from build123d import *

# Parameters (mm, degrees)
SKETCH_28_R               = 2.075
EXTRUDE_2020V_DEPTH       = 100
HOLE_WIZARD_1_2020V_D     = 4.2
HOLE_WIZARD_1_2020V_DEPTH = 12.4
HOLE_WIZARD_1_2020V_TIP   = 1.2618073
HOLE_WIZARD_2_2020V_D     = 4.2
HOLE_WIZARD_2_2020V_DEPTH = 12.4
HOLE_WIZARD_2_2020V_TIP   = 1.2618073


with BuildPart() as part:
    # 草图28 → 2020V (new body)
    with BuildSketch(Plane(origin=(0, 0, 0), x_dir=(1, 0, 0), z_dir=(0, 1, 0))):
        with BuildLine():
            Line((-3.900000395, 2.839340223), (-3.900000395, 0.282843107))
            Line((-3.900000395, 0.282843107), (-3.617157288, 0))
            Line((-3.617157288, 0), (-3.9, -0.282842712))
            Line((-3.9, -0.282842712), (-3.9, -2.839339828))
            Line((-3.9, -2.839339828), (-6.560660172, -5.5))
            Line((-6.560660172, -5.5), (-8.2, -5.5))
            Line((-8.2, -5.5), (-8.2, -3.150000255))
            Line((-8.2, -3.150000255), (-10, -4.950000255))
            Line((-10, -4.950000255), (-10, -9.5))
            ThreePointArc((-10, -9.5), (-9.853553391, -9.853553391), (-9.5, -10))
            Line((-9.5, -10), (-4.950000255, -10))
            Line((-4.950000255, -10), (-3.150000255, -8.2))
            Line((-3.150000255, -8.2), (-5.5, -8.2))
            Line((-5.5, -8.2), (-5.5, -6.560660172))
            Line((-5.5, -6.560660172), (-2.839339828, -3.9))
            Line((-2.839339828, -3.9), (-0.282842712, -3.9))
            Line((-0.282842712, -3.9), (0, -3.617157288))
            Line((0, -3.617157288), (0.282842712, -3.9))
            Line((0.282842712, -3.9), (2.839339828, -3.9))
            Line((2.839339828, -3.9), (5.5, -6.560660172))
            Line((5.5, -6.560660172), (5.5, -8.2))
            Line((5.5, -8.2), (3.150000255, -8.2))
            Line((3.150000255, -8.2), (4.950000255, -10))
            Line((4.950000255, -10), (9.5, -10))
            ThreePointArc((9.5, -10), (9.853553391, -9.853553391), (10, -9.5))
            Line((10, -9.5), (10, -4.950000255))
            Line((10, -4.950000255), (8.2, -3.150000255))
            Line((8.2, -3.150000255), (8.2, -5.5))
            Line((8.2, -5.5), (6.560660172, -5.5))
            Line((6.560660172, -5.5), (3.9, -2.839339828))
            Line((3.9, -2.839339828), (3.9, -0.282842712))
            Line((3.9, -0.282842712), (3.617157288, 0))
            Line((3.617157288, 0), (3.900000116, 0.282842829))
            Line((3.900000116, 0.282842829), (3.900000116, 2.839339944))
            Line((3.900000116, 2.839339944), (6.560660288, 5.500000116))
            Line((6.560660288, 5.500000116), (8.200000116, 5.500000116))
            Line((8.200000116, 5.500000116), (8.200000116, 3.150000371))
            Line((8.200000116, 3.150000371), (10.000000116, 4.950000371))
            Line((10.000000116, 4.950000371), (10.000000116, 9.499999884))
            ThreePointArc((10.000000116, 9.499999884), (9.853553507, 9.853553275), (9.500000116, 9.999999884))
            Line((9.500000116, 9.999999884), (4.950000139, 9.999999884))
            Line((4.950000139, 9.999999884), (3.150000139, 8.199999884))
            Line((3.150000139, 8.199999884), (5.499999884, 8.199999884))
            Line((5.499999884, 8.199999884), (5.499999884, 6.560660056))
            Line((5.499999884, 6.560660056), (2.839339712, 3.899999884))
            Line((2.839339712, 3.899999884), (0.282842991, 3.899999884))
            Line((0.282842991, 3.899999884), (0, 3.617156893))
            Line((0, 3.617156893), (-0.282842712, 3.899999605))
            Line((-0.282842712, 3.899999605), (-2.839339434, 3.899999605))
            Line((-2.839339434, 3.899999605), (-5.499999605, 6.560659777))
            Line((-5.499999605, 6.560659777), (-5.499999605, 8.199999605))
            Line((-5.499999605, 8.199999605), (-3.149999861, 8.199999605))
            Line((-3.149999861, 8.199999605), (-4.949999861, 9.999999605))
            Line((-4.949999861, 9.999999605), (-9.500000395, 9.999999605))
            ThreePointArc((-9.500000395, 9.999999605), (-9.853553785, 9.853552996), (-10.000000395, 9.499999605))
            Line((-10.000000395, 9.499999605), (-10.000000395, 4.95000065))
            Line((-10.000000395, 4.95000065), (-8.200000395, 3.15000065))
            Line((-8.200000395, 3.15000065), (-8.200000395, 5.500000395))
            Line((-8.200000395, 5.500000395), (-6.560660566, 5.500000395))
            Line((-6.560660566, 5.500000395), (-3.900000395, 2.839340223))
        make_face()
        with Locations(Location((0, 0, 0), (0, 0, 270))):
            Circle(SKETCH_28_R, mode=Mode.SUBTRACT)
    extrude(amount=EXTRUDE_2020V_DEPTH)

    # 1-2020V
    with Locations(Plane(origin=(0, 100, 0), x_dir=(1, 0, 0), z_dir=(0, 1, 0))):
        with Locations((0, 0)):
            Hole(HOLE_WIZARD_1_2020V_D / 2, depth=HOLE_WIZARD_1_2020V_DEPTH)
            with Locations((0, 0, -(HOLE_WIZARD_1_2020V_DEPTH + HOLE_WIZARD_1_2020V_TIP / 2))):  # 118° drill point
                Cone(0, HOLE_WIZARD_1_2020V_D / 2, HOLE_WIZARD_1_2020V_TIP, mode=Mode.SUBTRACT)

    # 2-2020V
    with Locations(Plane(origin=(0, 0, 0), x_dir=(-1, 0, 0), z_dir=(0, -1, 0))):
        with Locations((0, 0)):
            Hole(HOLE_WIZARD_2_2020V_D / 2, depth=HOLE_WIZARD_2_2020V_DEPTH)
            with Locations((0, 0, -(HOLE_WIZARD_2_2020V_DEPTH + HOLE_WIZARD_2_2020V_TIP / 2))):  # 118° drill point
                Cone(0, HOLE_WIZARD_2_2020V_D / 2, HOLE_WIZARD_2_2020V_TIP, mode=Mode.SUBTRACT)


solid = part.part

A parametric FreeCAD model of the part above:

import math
import FreeCAD as App
import Part
import Sketcher

V = App.Vector

doc = App.newDocument("Part")
body = doc.addObject("PartDesign::Body", "Body")

# Sketch on XZ plane
sketch1 = body.newObject("Sketcher::SketchObject", "Sketch")
sketch1.AttachmentSupport = (doc.getObject("XZ_Plane"), [""])
sketch1.MapMode = "FlatFace"
sketch1.addGeometry([
    Part.LineSegment(V(-3.9, -2.84, 0), V(-3.9, -0.28, 0)),  # 0
    Part.LineSegment(V(-3.9, -0.28, 0), V(-3.62, 0, 0)),  # 1
    Part.LineSegment(V(-3.62, 0, 0), V(-3.9, 0.28, 0)),  # 2
    Part.LineSegment(V(-3.9, 0.28, 0), V(-3.9, 2.84, 0)),  # 3
    Part.LineSegment(V(-3.9, 2.84, 0), V(-6.56, 5.5, 0)),  # 4
    Part.LineSegment(V(-6.56, 5.5, 0), V(-8.2, 5.5, 0)),  # 5
    Part.LineSegment(V(-8.2, 5.5, 0), V(-8.2, 3.15, 0)),  # 6
    Part.LineSegment(V(-8.2, 3.15, 0), V(-10, 4.95, 0)),  # 7
    Part.LineSegment(V(-10, 4.95, 0), V(-10, 9.5, 0)),  # 8
    Part.ArcOfCircle(Part.Circle(V(-9.5, 9.5, 0), V(0, 0, 1), 0.5), math.radians(90), math.radians(180)),  # 9
    Part.LineSegment(V(-9.5, 10, 0), V(-4.95, 10, 0)),  # 10
    Part.LineSegment(V(-4.95, 10, 0), V(-3.15, 8.2, 0)),  # 11
    Part.LineSegment(V(-3.15, 8.2, 0), V(-5.5, 8.2, 0)),  # 12
    Part.LineSegment(V(-5.5, 8.2, 0), V(-5.5, 6.56, 0)),  # 13
    Part.LineSegment(V(-5.5, 6.56, 0), V(-2.84, 3.9, 0)),  # 14
    Part.LineSegment(V(-2.84, 3.9, 0), V(-0.28, 3.9, 0)),  # 15
    Part.LineSegment(V(-0.28, 3.9, 0), V(0, 3.62, 0)),  # 16
    Part.LineSegment(V(0, 3.62, 0), V(0.28, 3.9, 0)),  # 17
    Part.LineSegment(V(0.28, 3.9, 0), V(2.84, 3.9, 0)),  # 18
    Part.LineSegment(V(2.84, 3.9, 0), V(5.5, 6.56, 0)),  # 19
    Part.LineSegment(V(5.5, 6.56, 0), V(5.5, 8.2, 0)),  # 20
    Part.LineSegment(V(5.5, 8.2, 0), V(3.15, 8.2, 0)),  # 21
    Part.LineSegment(V(3.15, 8.2, 0), V(4.95, 10, 0)),  # 22
    Part.LineSegment(V(4.95, 10, 0), V(9.5, 10, 0)),  # 23
    Part.ArcOfCircle(Part.Circle(V(9.5, 9.5, 0), V(0, 0, 1), 0.5), math.radians(0), math.radians(90)),  # 24
    Part.LineSegment(V(10, 9.5, 0), V(10, 4.95, 0)),  # 25
    Part.LineSegment(V(10, 4.95, 0), V(8.2, 3.15, 0)),  # 26
    Part.LineSegment(V(8.2, 3.15, 0), V(8.2, 5.5, 0)),  # 27
    Part.LineSegment(V(8.2, 5.5, 0), V(6.56, 5.5, 0)),  # 28
    Part.LineSegment(V(6.56, 5.5, 0), V(3.9, 2.84, 0)),  # 29
    Part.LineSegment(V(3.9, 2.84, 0), V(3.9, 0.28, 0)),  # 30
    Part.LineSegment(V(3.9, 0.28, 0), V(3.62, 0, 0)),  # 31
    Part.LineSegment(V(3.62, 0, 0), V(3.9, -0.28, 0)),  # 32
    Part.LineSegment(V(3.9, -0.28, 0), V(3.9, -2.84, 0)),  # 33
    Part.LineSegment(V(3.9, -2.84, 0), V(6.56, -5.5, 0)),  # 34
    Part.LineSegment(V(6.56, -5.5, 0), V(8.2, -5.5, 0)),  # 35
    Part.LineSegment(V(8.2, -5.5, 0), V(8.2, -3.15, 0)),  # 36
    Part.LineSegment(V(8.2, -3.15, 0), V(10, -4.95, 0)),  # 37
    Part.LineSegment(V(10, -4.95, 0), V(10, -9.5, 0)),  # 38
    Part.ArcOfCircle(Part.Circle(V(9.5, -9.5, 0), V(0, 0, 1), 0.5), math.radians(-90), math.radians(0)),  # 39
    Part.LineSegment(V(9.5, -10, 0), V(4.95, -10, 0)),  # 40
    Part.LineSegment(V(4.95, -10, 0), V(3.15, -8.2, 0)),  # 41
    Part.LineSegment(V(3.15, -8.2, 0), V(5.5, -8.2, 0)),  # 42
    Part.LineSegment(V(5.5, -8.2, 0), V(5.5, -6.56, 0)),  # 43
    Part.LineSegment(V(5.5, -6.56, 0), V(2.84, -3.9, 0)),  # 44
    Part.LineSegment(V(2.84, -3.9, 0), V(0.28, -3.9, 0)),  # 45
    Part.LineSegment(V(0.28, -3.9, 0), V(0, -3.62, 0)),  # 46
    Part.LineSegment(V(0, -3.62, 0), V(-0.28, -3.9, 0)),  # 47
    Part.LineSegment(V(-0.28, -3.9, 0), V(-2.84, -3.9, 0)),  # 48
    Part.LineSegment(V(-2.84, -3.9, 0), V(-5.5, -6.56, 0)),  # 49
    Part.LineSegment(V(-5.5, -6.56, 0), V(-5.5, -8.2, 0)),  # 50
    Part.LineSegment(V(-5.5, -8.2, 0), V(-3.15, -8.2, 0)),  # 51
    Part.LineSegment(V(-3.15, -8.2, 0), V(-4.95, -10, 0)),  # 52
    Part.LineSegment(V(-4.95, -10, 0), V(-9.5, -10, 0)),  # 53
    Part.ArcOfCircle(Part.Circle(V(-9.5, -9.5, 0), V(0, 0, 1), 0.5), math.radians(180), math.radians(270)),  # 54
    Part.LineSegment(V(-10, -9.5, 0), V(-10, -4.95, 0)),  # 55
    Part.LineSegment(V(-10, -4.95, 0), V(-8.2, -3.15, 0)),  # 56
    Part.LineSegment(V(-8.2, -3.15, 0), V(-8.2, -5.5, 0)),  # 57
    Part.LineSegment(V(-8.2, -5.5, 0), V(-6.56, -5.5, 0)),  # 58
    Part.LineSegment(V(-6.56, -5.5, 0), V(-3.9, -2.84, 0)),  # 59
    Part.Circle(V(0, 0, 0), V(0, 0, 1), 2.08),  # 60
], False)
sketch1.addConstraint([
    Sketcher.Constraint("Coincident", 0, 2, 1, 1),
    Sketcher.Constraint("Coincident", 1, 2, 2, 1),
    Sketcher.Constraint("Coincident", 2, 2, 3, 1),
    Sketcher.Constraint("Coincident", 3, 2, 4, 1),
    Sketcher.Constraint("Coincident", 4, 2, 5, 1),
    Sketcher.Constraint("Coincident", 5, 2, 6, 1),
    Sketcher.Constraint("Coincident", 6, 2, 7, 1),
    Sketcher.Constraint("Coincident", 7, 2, 8, 1),
    Sketcher.Constraint("Tangent", 8, 2, 9, 2),
    Sketcher.Constraint("Tangent", 9, 1, 10, 1),
    Sketcher.Constraint("Coincident", 10, 2, 11, 1),
    Sketcher.Constraint("Coincident", 11, 2, 12, 1),
    Sketcher.Constraint("Coincident", 12, 2, 13, 1),
    Sketcher.Constraint("Coincident", 13, 2, 14, 1),
    Sketcher.Constraint("Coincident", 14, 2, 15, 1),
    Sketcher.Constraint("Coincident", 15, 2, 16, 1),
    Sketcher.Constraint("Coincident", 16, 2, 17, 1),
    Sketcher.Constraint("Coincident", 17, 2, 18, 1),
    Sketcher.Constraint("Coincident", 18, 2, 19, 1),
    Sketcher.Constraint("Coincident", 19, 2, 20, 1),
    Sketcher.Constraint("Coincident", 20, 2, 21, 1),
    Sketcher.Constraint("Coincident", 21, 2, 22, 1),
    Sketcher.Constraint("Coincident", 22, 2, 23, 1),
    Sketcher.Constraint("Tangent", 23, 2, 24, 2),
    Sketcher.Constraint("Tangent", 24, 1, 25, 1),
    Sketcher.Constraint("Coincident", 25, 2, 26, 1),
    Sketcher.Constraint("Coincident", 26, 2, 27, 1),
    Sketcher.Constraint("Coincident", 27, 2, 28, 1),
    Sketcher.Constraint("Coincident", 28, 2, 29, 1),
    Sketcher.Constraint("Coincident", 29, 2, 30, 1),
    Sketcher.Constraint("Coincident", 30, 2, 31, 1),
    Sketcher.Constraint("Coincident", 31, 2, 32, 1),
    Sketcher.Constraint("Coincident", 32, 2, 33, 1),
    Sketcher.Constraint("Coincident", 33, 2, 34, 1),
    Sketcher.Constraint("Coincident", 34, 2, 35, 1),
    Sketcher.Constraint("Coincident", 35, 2, 36, 1),
    Sketcher.Constraint("Coincident", 36, 2, 37, 1),
    Sketcher.Constraint("Coincident", 37, 2, 38, 1),
    Sketcher.Constraint("Tangent", 38, 2, 39, 2),
    Sketcher.Constraint("Tangent", 39, 1, 40, 1),
    Sketcher.Constraint("Coincident", 40, 2, 41, 1),
    Sketcher.Constraint("Coincident", 41, 2, 42, 1),
    Sketcher.Constraint("Coincident", 42, 2, 43, 1),
    Sketcher.Constraint("Coincident", 43, 2, 44, 1),
    Sketcher.Constraint("Coincident", 44, 2, 45, 1),
    Sketcher.Constraint("Coincident", 45, 2, 46, 1),
    Sketcher.Constraint("Coincident", 46, 2, 47, 1),
    Sketcher.Constraint("Coincident", 47, 2, 48, 1),
    Sketcher.Constraint("Coincident", 48, 2, 49, 1),
    Sketcher.Constraint("Coincident", 49, 2, 50, 1),
    Sketcher.Constraint("Coincident", 50, 2, 51, 1),
    Sketcher.Constraint("Coincident", 51, 2, 52, 1),
    Sketcher.Constraint("Coincident", 52, 2, 53, 1),
    Sketcher.Constraint("Tangent", 53, 2, 54, 2),
    Sketcher.Constraint("Tangent", 54, 1, 55, 1),
    Sketcher.Constraint("Coincident", 55, 2, 56, 1),
    Sketcher.Constraint("Coincident", 56, 2, 57, 1),
    Sketcher.Constraint("Coincident", 57, 2, 58, 1),
    Sketcher.Constraint("Coincident", 58, 2, 59, 1),
    Sketcher.Constraint("Coincident", 59, 2, 0, 1),
    Sketcher.Constraint("Vertical", 0),
    Sketcher.Constraint("Vertical", 3),
    Sketcher.Constraint("Horizontal", 5),
    Sketcher.Constraint("Vertical", 6),
    Sketcher.Constraint("Vertical", 8),
    Sketcher.Constraint("Horizontal", 10),
    Sketcher.Constraint("Horizontal", 12),
    Sketcher.Constraint("Vertical", 13),
    Sketcher.Constraint("Horizontal", 15),
    Sketcher.Constraint("Horizontal", 18),
    Sketcher.Constraint("Vertical", 20),
    Sketcher.Constraint("Horizontal", 21),
    Sketcher.Constraint("Horizontal", 23),
    Sketcher.Constraint("Vertical", 25),
    Sketcher.Constraint("Vertical", 27),
    Sketcher.Constraint("Horizontal", 28),
    Sketcher.Constraint("Vertical", 30),
    Sketcher.Constraint("Vertical", 33),
    Sketcher.Constraint("Horizontal", 35),
    Sketcher.Constraint("Vertical", 36),
    Sketcher.Constraint("Vertical", 38),
    Sketcher.Constraint("Horizontal", 40),
    Sketcher.Constraint("Horizontal", 42),
    Sketcher.Constraint("Vertical", 43),
    Sketcher.Constraint("Horizontal", 45),
    Sketcher.Constraint("Horizontal", 48),
    Sketcher.Constraint("Vertical", 50),
    Sketcher.Constraint("Horizontal", 51),
    Sketcher.Constraint("Horizontal", 53),
    Sketcher.Constraint("Vertical", 55),
    Sketcher.Constraint("Vertical", 57),
    Sketcher.Constraint("Horizontal", 58),
    Sketcher.Constraint("Coincident", 60, 3, -1, 1),
    Sketcher.Constraint("Equal", 9, 24),
    Sketcher.Constraint("Equal", 24, 39),
    Sketcher.Constraint("Equal", 39, 54),
    Sketcher.Constraint("Symmetric", 9, 3, 39, 3, -1, 1),
    Sketcher.Constraint("Symmetric", 24, 3, 54, 3, -1, 1),
    Sketcher.Constraint("Symmetric", 0, 2, 30, 2, -1, 1),
    Sketcher.Constraint("Symmetric", 1, 2, 31, 2, -1, 1),
    Sketcher.Constraint("Symmetric", 2, 2, 32, 2, -1, 1),
    Sketcher.Constraint("Symmetric", 4, 2, 34, 2, -1, 1),
    Sketcher.Constraint("Symmetric", 6, 2, 36, 2, -1, 1),
    Sketcher.Constraint("Symmetric", 11, 2, 41, 2, -1, 1),
    Sketcher.Constraint("Symmetric", 13, 2, 43, 2, -1, 1),
    Sketcher.Constraint("Symmetric", 14, 2, 44, 2, -1, 1),
    Sketcher.Constraint("Symmetric", 16, 2, 46, 2, -1, 1),
    Sketcher.Constraint("Symmetric", 17, 2, 47, 2, -1, 1),
    Sketcher.Constraint("Symmetric", 19, 2, 49, 2, -1, 1),
    Sketcher.Constraint("Symmetric", 21, 2, 51, 2, -1, 1),
    Sketcher.Constraint("Symmetric", 26, 2, 56, 2, -1, 1),
    Sketcher.Constraint("Symmetric", 28, 2, 58, 2, -1, 1),
    Sketcher.Constraint("Symmetric", 9, 3, 24, 3, -2),
    Sketcher.Constraint("Symmetric", 15, 2, 17, 2, -2),
    Sketcher.Constraint("Symmetric", 13, 2, 19, 2, -2),
    Sketcher.Constraint("Symmetric", 11, 2, 21, 2, -2),
    Sketcher.Constraint("Symmetric", 6, 2, 26, 2, -2),
    Sketcher.Constraint("Symmetric", 4, 2, 28, 2, -2),
    Sketcher.Constraint("Symmetric", 3, 2, 29, 2, -2),
    Sketcher.Constraint("PointOnObject", 1, 2, -1),
    Sketcher.Constraint("PointOnObject", 16, 2, -2),
    Sketcher.Constraint("Perpendicular", 1, 2),
    Sketcher.Constraint("Parallel", 2, 4),
    Sketcher.Constraint("Parallel", 4, 7),
    Sketcher.Constraint("Parallel", 7, 11),
    Sketcher.Constraint("Parallel", 11, 14),
    Sketcher.Constraint("Parallel", 14, 16),
    Sketcher.Constraint("Perpendicular", 16, 17),
    Sketcher.Constraint("Parallel", 17, 19),
    Sketcher.Constraint("Parallel", 19, 22),
    Sketcher.Constraint("Parallel", 22, 26),
    Sketcher.Constraint("Parallel", 32, 34),
    Sketcher.Constraint("Parallel", 34, 37),
    Sketcher.Constraint("Parallel", 37, 41),
    Sketcher.Constraint("Parallel", 44, 46),
    Sketcher.Constraint("Parallel", 47, 49),
    Sketcher.Constraint("Parallel", 49, 52),
    Sketcher.Constraint("Parallel", 52, 56),
    Sketcher.Constraint("Parallel", 56, 59),
    Sketcher.Constraint("Equal", 48, 0),
    Sketcher.Constraint("Equal", 51, 6),
    Sketcher.Constraint("Equal", 53, 8),
    Sketcher.Constraint("Equal", 58, 13),
    Sketcher.Constraint("Equal", 7, 11),
    Sketcher.Constraint("Equal", 4, 14),
    Sketcher.Constraint("Equal", 2, 16),
    Sketcher.Constraint("Radius", 9, 0.5),
    Sketcher.Constraint("Diameter", 60, 4.15),
    Sketcher.Constraint("DistanceX", 7, 2, -1, 1, 10.0),
    Sketcher.Constraint("Distance", 1, 0.400001),
    Sketcher.Constraint("DistanceX", 10, 1, 10, 2, 4.55),
    Sketcher.Constraint("DistanceX", 12, 2, 12, 1, 2.35),
    Sketcher.Constraint("DistanceX", 0, 2, -1, 1, 3.9),
    Sketcher.Constraint("DistanceY", -1, 1, 4, 2, 5.5),
    Sketcher.Constraint("DistanceX", 5, 2, 5, 1, 1.63934),
])
pad1 = body.newObject("PartDesign::Pad", "Pad")
pad1.Profile = sketch1
pad1.Length = 100
pad1.Reversed = True

# Sketch on XZ plane
sketch2 = body.newObject("Sketcher::SketchObject", "Sketch001")
sketch2.AttachmentSupport = (doc.getObject("XZ_Plane"), [""])
sketch2.MapMode = "FlatFace"
sketch2.AttachmentOffset = App.Placement(V(0, 0, -100), App.Rotation())
sketch2.addGeometry(Part.Circle(V(0, 0, 0), V(0, 0, 1), 2.1), False)
sketch2.addConstraint([
    Sketcher.Constraint("Coincident", 0, 3, -1, 1),
    Sketcher.Constraint("Diameter", 0, 4.2),
])
doc.recompute()
hole = body.newObject("PartDesign::Hole", "Hole")
hole.Profile = sketch2
hole.ThreadType = "None"
hole.Diameter = 4.2
hole.DepthType = "Dimension"
hole.Depth = 12.4
hole.DrillPoint = "Angled"
hole.DrillPointAngle = 118
hole.Reversed = True

# Sketch on XZ plane
sketch3 = body.newObject("Sketcher::SketchObject", "Sketch002")
sketch3.AttachmentSupport = (doc.getObject("XZ_Plane"), [""])
sketch3.MapMode = "FlatFace"
sketch3.addGeometry(Part.Circle(V(0, 0, 0), V(0, 0, 1), 2.1), False)
sketch3.addConstraint([
    Sketcher.Constraint("Coincident", 0, 3, -1, 1),
    Sketcher.Constraint("Diameter", 0, 4.2),
])
doc.recompute()
hole2 = body.newObject("PartDesign::Hole", "Hole001")
hole2.Profile = sketch3
hole2.ThreadType = "None"
hole2.Diameter = 4.2
hole2.DepthType = "Dimension"
hole2.Depth = 12.4
hole2.DrillPoint = "Angled"
hole2.DrillPointAngle = 118

doc.recompute()
